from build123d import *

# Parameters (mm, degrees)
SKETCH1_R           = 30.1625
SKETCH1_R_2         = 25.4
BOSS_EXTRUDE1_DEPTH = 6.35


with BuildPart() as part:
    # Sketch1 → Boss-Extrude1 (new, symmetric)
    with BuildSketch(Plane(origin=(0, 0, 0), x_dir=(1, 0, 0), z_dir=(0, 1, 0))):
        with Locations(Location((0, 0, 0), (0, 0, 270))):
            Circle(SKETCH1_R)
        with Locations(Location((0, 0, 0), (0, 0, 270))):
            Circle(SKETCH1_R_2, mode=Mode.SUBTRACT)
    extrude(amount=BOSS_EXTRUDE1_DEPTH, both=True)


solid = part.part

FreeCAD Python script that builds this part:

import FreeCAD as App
import Part
import Sketcher

V = App.Vector
Q = App.Units.Quantity

doc = App.newDocument("Part")
body = doc.addObject("PartDesign::Body", "Body")

sketch1 = body.newObject("Sketcher::SketchObject", "Sketch")
sketch1.AttachmentSupport = (doc.getObject("XZ_Plane"), [""])
sketch1.MapMode = "FlatFace"
sketch1.addGeometry([
    Part.Circle(V(0, 0, 0), V(0, 0, 1), 30),
    Part.Circle(V(0, 0, 0), V(0, 0, 1), 25),
], False)
sketch1.addConstraint([
    Sketcher.Constraint("Coincident", 0, 3, -1, 1),
    Sketcher.Constraint("Coincident", 1, 3, -1, 1),
    Sketcher.Constraint("Diameter", 1, Q("2 in")),
    Sketcher.Constraint("Diameter", 0, Q("2.375 in")),
])
pad1 = body.newObject("PartDesign::Pad", "Pad")
pad1.Profile = sketch1
pad1.Length = Q("0.5 in")
pad1.Midplane = True

doc.recompute()
